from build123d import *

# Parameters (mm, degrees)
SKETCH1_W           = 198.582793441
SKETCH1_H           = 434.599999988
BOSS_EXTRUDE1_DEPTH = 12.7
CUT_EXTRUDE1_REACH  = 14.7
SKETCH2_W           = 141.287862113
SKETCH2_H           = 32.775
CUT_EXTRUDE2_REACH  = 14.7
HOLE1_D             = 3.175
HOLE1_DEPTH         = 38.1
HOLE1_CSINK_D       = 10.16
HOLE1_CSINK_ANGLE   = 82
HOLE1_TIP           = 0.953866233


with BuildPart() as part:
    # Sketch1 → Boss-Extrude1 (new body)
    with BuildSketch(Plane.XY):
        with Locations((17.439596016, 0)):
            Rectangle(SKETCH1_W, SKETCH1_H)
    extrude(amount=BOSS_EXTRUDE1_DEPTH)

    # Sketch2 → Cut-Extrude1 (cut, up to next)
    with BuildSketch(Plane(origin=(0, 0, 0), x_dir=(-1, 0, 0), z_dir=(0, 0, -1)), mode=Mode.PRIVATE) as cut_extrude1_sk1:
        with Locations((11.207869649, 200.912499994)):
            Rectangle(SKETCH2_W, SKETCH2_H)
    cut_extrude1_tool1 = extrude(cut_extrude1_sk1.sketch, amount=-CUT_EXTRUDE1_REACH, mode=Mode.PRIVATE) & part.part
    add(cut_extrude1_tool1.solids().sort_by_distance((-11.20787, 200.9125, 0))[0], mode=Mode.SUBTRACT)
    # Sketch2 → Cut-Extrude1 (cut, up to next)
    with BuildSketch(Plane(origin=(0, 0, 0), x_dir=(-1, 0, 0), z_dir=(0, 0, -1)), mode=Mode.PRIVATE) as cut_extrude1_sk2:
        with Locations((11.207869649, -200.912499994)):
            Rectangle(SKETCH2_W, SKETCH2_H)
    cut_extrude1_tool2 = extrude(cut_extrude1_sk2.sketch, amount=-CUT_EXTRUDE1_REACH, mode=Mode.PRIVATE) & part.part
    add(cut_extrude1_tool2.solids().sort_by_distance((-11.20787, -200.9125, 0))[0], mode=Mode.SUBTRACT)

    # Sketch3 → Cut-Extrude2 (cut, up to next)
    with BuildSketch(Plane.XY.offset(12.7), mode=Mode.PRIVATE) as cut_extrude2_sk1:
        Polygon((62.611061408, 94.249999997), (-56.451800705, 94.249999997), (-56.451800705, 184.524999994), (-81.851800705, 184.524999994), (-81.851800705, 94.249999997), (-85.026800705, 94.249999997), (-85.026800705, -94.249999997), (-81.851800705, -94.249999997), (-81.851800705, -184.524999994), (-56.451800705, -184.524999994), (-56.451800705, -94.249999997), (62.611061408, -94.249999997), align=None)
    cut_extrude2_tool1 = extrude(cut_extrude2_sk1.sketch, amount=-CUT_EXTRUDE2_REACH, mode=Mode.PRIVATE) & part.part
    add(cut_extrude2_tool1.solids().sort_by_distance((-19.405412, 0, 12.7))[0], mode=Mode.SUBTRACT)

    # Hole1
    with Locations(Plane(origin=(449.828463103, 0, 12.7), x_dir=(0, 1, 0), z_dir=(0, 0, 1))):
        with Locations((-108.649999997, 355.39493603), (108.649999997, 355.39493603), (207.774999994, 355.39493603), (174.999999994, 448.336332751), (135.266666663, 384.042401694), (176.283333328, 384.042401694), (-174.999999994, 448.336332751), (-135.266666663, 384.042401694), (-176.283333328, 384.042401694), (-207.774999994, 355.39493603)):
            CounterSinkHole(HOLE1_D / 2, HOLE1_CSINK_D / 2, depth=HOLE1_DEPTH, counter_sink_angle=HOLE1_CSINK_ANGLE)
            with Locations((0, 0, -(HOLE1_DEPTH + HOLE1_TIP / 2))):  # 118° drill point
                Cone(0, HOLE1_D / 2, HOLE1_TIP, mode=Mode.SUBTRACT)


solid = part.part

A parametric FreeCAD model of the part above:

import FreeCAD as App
import Part
import Sketcher

V = App.Vector
Q = App.Units.Quantity

doc = App.newDocument("Part")
body = doc.addObject("PartDesign::Body", "Body")

sketch1 = body.newObject("Sketcher::SketchObject", "Sketch")
sketch1.AttachmentSupport = (doc.getObject("XY_Plane"), [""])
sketch1.MapMode = "FlatFace"
sketch1.addGeometry([
    Part.LineSegment(V(-82, 217, 0), V(-82, -217, 0)),
    Part.LineSegment(V(-82, -217, 0), V(117, -217, 0)),
    Part.LineSegment(V(117, -217, 0), V(117, 217, 0)),
    Part.LineSegment(V(117, 217, 0), V(-82, 217, 0)),
], False)
sketch1.addConstraint([
    Sketcher.Constraint("Coincident", 0, 2, 1, 1),
    Sketcher.Constraint("Coincident", 1, 2, 2, 1),
    Sketcher.Constraint("Coincident", 2, 2, 3, 1),
    Sketcher.Constraint("Coincident", 3, 2, 0, 1),
    Sketcher.Constraint("Vertical", 0),
    Sketcher.Constraint("Horizontal", 1),
    Sketcher.Constraint("Vertical", 2),
    Sketcher.Constraint("Horizontal", 3),
    Sketcher.Constraint("DistanceY", 0, 2, 0, 1, Q("434.6 mm")),
    Sketcher.Constraint("DistanceX", 0, 2, -1, 1, Q("81.851801 mm")),
    Sketcher.Constraint("DistanceY", 0, 2, -1, 1, Q("217.3 mm")),
    Sketcher.Constraint("DistanceX", 1, 1, 1, 2, Q("198.582793 mm")),
])
pad1 = body.newObject("PartDesign::Pad", "Pad")
pad1.Profile = sketch1
pad1.Length = Q("0.5 in")

sketch2 = body.newObject("Sketcher::SketchObject", "Sketch001")
sketch2.AttachmentSupport = (doc.getObject("XY_Plane"), [""])
sketch2.MapMode = "FlatFace"
sketch2.addGeometry([
    Part.LineSegment(V(59, 217, 0), V(59, 185, 0)),
    Part.LineSegment(V(59, 185, 0), V(-82, 185, 0)),
    Part.LineSegment(V(-82, 185, 0), V(-82, 217, 0)),
    Part.LineSegment(V(-82, 217, 0), V(59, 217, 0)),
], False)
sketch2.addConstraint([
    Sketcher.Constraint("Coincident", 0, 2, 1, 1),
    Sketcher.Constraint("Coincident", 1, 2, 2, 1),
    Sketcher.Constraint("Coincident", 2, 2, 3, 1),
    Sketcher.Constraint("Coincident", 3, 2, 0, 1),
    Sketcher.Constraint("Vertical", 0),
    Sketcher.Constraint("Horizontal", 1),
    Sketcher.Constraint("Vertical", 2),
    Sketcher.Constraint("Horizontal", 3),
    Sketcher.Constraint("DistanceY", 0, 2, 0, 1, Q("32.775 mm")),
    Sketcher.Constraint("DistanceY", -1, 1, 0, 2, Q("184.525 mm")),
    Sketcher.Constraint("DistanceX", 1, 2, -1, 1, Q("81.851801 mm")),
    Sketcher.Constraint("DistanceX", 1, 2, 1, 1, Q("141.287862 mm")),
])
pocket1 = body.newObject("PartDesign::Pocket", "Pocket")
pocket1.Profile = sketch2
pocket1.Type = "UpToFirst"
pocket1.Reversed = True

sketch3 = body.newObject("Sketcher::SketchObject", "Sketch002")
sketch3.AttachmentSupport = (doc.getObject("XY_Plane"), [""])
sketch3.MapMode = "FlatFace"
sketch3.addGeometry([
    Part.LineSegment(V(59, -185, 0), V(59, -217, 0)),
    Part.LineSegment(V(59, -217, 0), V(-82, -217, 0)),
    Part.LineSegment(V(-82, -217, 0), V(-82, -185, 0)),
    Part.LineSegment(V(-82, -185, 0), V(59, -185, 0)),
], False)
sketch3.addConstraint([
    Sketcher.Constraint("Coincident", 0, 2, 1, 1),
    Sketcher.Constraint("Coincident", 1, 2, 2, 1),
    Sketcher.Constraint("Coincident", 2, 2, 3, 1),
    Sketcher.Constraint("Coincident", 3, 2, 0, 1),
    Sketcher.Constraint("Vertical", 0),
    Sketcher.Constraint("Horizontal", 1),
    Sketcher.Constraint("Vertical", 2),
    Sketcher.Constraint("Horizontal", 3),
    Sketcher.Constraint("DistanceY", 0, 2, 0, 1, Q("32.775 mm")),
    Sketcher.Constraint("DistanceY", 0, 2, -1, 1, Q("217.3 mm")),
    Sketcher.Constraint("DistanceX", 1, 2, -1, 1, Q("81.851801 mm")),
    Sketcher.Constraint("DistanceX", 1, 2, 1, 1, Q("141.287862 mm")),
])
pocket2 = body.newObject("PartDesign::Pocket", "Pocket001")
pocket2.Profile = sketch3
pocket2.Type = "UpToFirst"
pocket2.Reversed = True

sketch4 = body.newObject("Sketcher::SketchObject", "Sketch003")
sketch4.AttachmentSupport = (doc.getObject("XY_Plane"), [""])
sketch4.MapMode = "FlatFace"
sketch4.AttachmentOffset = App.Placement(V(0, 0, 0.5 * 25.4), App.Rotation())
sketch4.addGeometry([
    Part.LineSegment(V(62.6, 94.2, 0), V(-56.5, 94.2, 0)),
    Part.LineSegment(V(-56.5, 94.2, 0), V(-56.5, 184.5, 0)),
    Part.LineSegment(V(-56.5, 184.5, 0), V(-81.9, 184.5, 0)),
    Part.LineSegment(V(-81.9, 184.5, 0), V(-81.9, 94.2, 0)),
    Part.LineSegment(V(-81.9, 94.2, 0), V(-85, 94.2, 0)),
    Part.LineSegment(V(-85, 94.2, 0), V(-85, -94.2, 0)),
    Part.LineSegment(V(-85, -94.2, 0), V(-81.9, -94.2, 0)),
    Part.LineSegment(V(-81.9, -94.2, 0), V(-81.9, -184.5, 0)),
    Part.LineSegment(V(-81.9, -184.5, 0), V(-56.5, -184.5, 0)),
    Part.LineSegment(V(-56.5, -184.5, 0), V(-56.5, -94.2, 0)),
    Part.LineSegment(V(-56.5, -94.2, 0), V(62.6, -94.2, 0)),
    Part.LineSegment(V(62.6, -94.2, 0), V(62.6, 94.2, 0)),
], False)
sketch4.addConstraint([
    Sketcher.Constraint("Coincident", 0, 2, 1, 1),
    Sketcher.Constraint("Coincident", 1, 2, 2, 1),
    Sketcher.Constraint("Coincident", 2, 2, 3, 1),
    Sketcher.Constraint("Coincident", 3, 2, 4, 1),
    Sketcher.Constraint("Coincident", 4, 2, 5, 1),
    Sketcher.Constraint("Coincident", 5, 2, 6, 1),
    Sketcher.Constraint("Coincident", 6, 2, 7, 1),
    Sketcher.Constraint("Coincident", 7, 2, 8, 1),
    Sketcher.Constraint("Coincident", 8, 2, 9, 1),
    Sketcher.Constraint("Coincident", 9, 2, 10, 1),
    Sketcher.Constraint("Coincident", 10, 2, 11, 1),
    Sketcher.Constraint("Coincident", 11, 2, 0, 1),
    Sketcher.Constraint("Horizontal", 0),
    Sketcher.Constraint("Vertical", 1),
    Sketcher.Constraint("Horizontal", 2),
    Sketcher.Constraint("Vertical", 3),
    Sketcher.Constraint("Horizontal", 4),
    Sketcher.Constraint("Vertical", 5),
    Sketcher.Constraint("Horizontal", 6),
    Sketcher.Constraint("Vertical", 7),
    Sketcher.Constraint("Horizontal", 8),
    Sketcher.Constraint("Vertical", 9),
    Sketcher.Constraint("Horizontal", 10),
    Sketcher.Constraint("Vertical", 11),
    Sketcher.Constraint("Symmetric", 3, 2, 6, 2, -1),
    Sketcher.Constraint("Symmetric", 1, 2, 8, 2, -1),
    Sketcher.Constraint("Horizontal", 0, 2, 3, 2),
    Sketcher.Constraint("Horizontal", 6, 2, 9, 2),
    Sketcher.Constraint("DistanceX", 2, 2, 2, 1, Q("1 in")),
    Sketcher.Constraint("DistanceX", 4, 2, 4, 1, Q("0.125 in")),
    Sketcher.Constraint("DistanceY", 1, 1, 1, 2, Q("90.275 mm")),
    Sketcher.Constraint("DistanceY", 5, 2, 5, 1, Q("188.5 mm")),
    Sketcher.Constraint("DistanceX", 0, 2, -1, 1, Q("56.451801 mm")),
    Sketcher.Constraint("DistanceX", 0, 2, 0, 1, Q("119.062862 mm")),
])
pocket3 = body.newObject("PartDesign::Pocket", "Pocket002")
pocket3.Profile = sketch4
pocket3.Type = "UpToFirst"

sketch5 = body.newObject("Sketcher::SketchObject", "Sketch004")
sketch5.AttachmentSupport = (doc.getObject("XY_Plane"), [""])
sketch5.MapMode = "FlatFace"
sketch5.AttachmentOffset = App.Placement(V(0, 0, 0.5 * 25.4), App.Rotation())
sketch5.addGeometry([
    Part.Circle(V(94.4, -108.6, 0), V(0, 0, 1), 1.6),
    Part.Circle(V(94.4, 108.6, 0), V(0, 0, 1), 1.6),
    Part.Circle(V(94.4, 207.8, 0), V(0, 0, 1), 1.6),
    Part.Circle(V(1.5, 175, 0), V(0, 0, 1), 1.6),
    Part.Circle(V(65.8, 135.3, 0), V(0, 0, 1), 1.6),
    Part.Circle(V(65.8, 176.3, 0), V(0, 0, 1), 1.6),
    Part.Circle(V(1.5, -175, 0), V(0, 0, 1), 1.6),
    Part.Circle(V(65.8, -135.3, 0), V(0, 0, 1), 1.6),
    Part.Circle(V(65.8, -176.3, 0), V(0, 0, 1), 1.6),
    Part.Circle(V(94.4, -207.8, 0), V(0, 0, 1), 1.6),
], False)
sketch5.addConstraint([
    Sketcher.Constraint("Equal", 0, 1),
    Sketcher.Constraint("Equal", 1, 2),
    Sketcher.Constraint("Equal", 2, 3),
    Sketcher.Constraint("Equal", 3, 4),
    Sketcher.Constraint("Equal", 4, 5),
    Sketcher.Constraint("Equal", 5, 6),
    Sketcher.Constraint("Equal", 6, 7),
    Sketcher.Constraint("Equal", 7, 8),
    Sketcher.Constraint("Equal", 8, 9),
    Sketcher.Constraint("Symmetric", 0, 3, 1, 3, -1),
    Sketcher.Constraint("Symmetric", 3, 3, 6, 3, -1),
    Sketcher.Constraint("Symmetric", 4, 3, 7, 3, -1),
    Sketcher.Constraint("Symmetric", 5, 3, 8, 3, -1),
    Sketcher.Constraint("Symmetric", 2, 3, 9, 3, -1),
    Sketcher.Constraint("Vertical", 1, 3, 2, 3),
    Sketcher.Constraint("Vertical", 4, 3, 5, 3),
    Sketcher.Constraint("Diameter", 0, Q("0.125 in")),
    Sketcher.Constraint("DistanceY", 0, 3, -1, 1, Q("108.65 mm")),
    Sketcher.Constraint("DistanceY", -1, 1, 2, 3, Q("207.775 mm")),
    Sketcher.Constraint("DistanceY", -1, 1, 3, 3, Q("175 mm")),
    Sketcher.Constraint("DistanceY", 7, 3, 5, 3, Q("311.55 mm")),
    Sketcher.Constraint("DistanceX", -1, 1, 3, 3, Q("1.49213 mm")),
    Sketcher.Constraint("DistanceX", -1, 1, 4, 3, Q("65.786061 mm")),
    Sketcher.Constraint("DistanceX", -1, 1, 0, 3, Q("94.433527 mm")),
    Sketcher.Constraint("DistanceY", -1, 1, 4, 3, Q("135.266667 mm")),
])
doc.recompute()
hole = body.newObject("PartDesign::Hole", "Hole")
hole.Profile = sketch5
hole.ThreadType = "None"
hole.Diameter = Q("0.125 in")
hole.DepthType = "Dimension"
hole.Depth = Q("1.5 in")
hole.DrillPoint = "Angled"
hole.DrillPointAngle = 118
hole.HoleCutType = "Countersink"
hole.HoleCutDiameter = Q("0.4 in")
hole.HoleCutCountersinkAngle = 82

doc.recompute()
